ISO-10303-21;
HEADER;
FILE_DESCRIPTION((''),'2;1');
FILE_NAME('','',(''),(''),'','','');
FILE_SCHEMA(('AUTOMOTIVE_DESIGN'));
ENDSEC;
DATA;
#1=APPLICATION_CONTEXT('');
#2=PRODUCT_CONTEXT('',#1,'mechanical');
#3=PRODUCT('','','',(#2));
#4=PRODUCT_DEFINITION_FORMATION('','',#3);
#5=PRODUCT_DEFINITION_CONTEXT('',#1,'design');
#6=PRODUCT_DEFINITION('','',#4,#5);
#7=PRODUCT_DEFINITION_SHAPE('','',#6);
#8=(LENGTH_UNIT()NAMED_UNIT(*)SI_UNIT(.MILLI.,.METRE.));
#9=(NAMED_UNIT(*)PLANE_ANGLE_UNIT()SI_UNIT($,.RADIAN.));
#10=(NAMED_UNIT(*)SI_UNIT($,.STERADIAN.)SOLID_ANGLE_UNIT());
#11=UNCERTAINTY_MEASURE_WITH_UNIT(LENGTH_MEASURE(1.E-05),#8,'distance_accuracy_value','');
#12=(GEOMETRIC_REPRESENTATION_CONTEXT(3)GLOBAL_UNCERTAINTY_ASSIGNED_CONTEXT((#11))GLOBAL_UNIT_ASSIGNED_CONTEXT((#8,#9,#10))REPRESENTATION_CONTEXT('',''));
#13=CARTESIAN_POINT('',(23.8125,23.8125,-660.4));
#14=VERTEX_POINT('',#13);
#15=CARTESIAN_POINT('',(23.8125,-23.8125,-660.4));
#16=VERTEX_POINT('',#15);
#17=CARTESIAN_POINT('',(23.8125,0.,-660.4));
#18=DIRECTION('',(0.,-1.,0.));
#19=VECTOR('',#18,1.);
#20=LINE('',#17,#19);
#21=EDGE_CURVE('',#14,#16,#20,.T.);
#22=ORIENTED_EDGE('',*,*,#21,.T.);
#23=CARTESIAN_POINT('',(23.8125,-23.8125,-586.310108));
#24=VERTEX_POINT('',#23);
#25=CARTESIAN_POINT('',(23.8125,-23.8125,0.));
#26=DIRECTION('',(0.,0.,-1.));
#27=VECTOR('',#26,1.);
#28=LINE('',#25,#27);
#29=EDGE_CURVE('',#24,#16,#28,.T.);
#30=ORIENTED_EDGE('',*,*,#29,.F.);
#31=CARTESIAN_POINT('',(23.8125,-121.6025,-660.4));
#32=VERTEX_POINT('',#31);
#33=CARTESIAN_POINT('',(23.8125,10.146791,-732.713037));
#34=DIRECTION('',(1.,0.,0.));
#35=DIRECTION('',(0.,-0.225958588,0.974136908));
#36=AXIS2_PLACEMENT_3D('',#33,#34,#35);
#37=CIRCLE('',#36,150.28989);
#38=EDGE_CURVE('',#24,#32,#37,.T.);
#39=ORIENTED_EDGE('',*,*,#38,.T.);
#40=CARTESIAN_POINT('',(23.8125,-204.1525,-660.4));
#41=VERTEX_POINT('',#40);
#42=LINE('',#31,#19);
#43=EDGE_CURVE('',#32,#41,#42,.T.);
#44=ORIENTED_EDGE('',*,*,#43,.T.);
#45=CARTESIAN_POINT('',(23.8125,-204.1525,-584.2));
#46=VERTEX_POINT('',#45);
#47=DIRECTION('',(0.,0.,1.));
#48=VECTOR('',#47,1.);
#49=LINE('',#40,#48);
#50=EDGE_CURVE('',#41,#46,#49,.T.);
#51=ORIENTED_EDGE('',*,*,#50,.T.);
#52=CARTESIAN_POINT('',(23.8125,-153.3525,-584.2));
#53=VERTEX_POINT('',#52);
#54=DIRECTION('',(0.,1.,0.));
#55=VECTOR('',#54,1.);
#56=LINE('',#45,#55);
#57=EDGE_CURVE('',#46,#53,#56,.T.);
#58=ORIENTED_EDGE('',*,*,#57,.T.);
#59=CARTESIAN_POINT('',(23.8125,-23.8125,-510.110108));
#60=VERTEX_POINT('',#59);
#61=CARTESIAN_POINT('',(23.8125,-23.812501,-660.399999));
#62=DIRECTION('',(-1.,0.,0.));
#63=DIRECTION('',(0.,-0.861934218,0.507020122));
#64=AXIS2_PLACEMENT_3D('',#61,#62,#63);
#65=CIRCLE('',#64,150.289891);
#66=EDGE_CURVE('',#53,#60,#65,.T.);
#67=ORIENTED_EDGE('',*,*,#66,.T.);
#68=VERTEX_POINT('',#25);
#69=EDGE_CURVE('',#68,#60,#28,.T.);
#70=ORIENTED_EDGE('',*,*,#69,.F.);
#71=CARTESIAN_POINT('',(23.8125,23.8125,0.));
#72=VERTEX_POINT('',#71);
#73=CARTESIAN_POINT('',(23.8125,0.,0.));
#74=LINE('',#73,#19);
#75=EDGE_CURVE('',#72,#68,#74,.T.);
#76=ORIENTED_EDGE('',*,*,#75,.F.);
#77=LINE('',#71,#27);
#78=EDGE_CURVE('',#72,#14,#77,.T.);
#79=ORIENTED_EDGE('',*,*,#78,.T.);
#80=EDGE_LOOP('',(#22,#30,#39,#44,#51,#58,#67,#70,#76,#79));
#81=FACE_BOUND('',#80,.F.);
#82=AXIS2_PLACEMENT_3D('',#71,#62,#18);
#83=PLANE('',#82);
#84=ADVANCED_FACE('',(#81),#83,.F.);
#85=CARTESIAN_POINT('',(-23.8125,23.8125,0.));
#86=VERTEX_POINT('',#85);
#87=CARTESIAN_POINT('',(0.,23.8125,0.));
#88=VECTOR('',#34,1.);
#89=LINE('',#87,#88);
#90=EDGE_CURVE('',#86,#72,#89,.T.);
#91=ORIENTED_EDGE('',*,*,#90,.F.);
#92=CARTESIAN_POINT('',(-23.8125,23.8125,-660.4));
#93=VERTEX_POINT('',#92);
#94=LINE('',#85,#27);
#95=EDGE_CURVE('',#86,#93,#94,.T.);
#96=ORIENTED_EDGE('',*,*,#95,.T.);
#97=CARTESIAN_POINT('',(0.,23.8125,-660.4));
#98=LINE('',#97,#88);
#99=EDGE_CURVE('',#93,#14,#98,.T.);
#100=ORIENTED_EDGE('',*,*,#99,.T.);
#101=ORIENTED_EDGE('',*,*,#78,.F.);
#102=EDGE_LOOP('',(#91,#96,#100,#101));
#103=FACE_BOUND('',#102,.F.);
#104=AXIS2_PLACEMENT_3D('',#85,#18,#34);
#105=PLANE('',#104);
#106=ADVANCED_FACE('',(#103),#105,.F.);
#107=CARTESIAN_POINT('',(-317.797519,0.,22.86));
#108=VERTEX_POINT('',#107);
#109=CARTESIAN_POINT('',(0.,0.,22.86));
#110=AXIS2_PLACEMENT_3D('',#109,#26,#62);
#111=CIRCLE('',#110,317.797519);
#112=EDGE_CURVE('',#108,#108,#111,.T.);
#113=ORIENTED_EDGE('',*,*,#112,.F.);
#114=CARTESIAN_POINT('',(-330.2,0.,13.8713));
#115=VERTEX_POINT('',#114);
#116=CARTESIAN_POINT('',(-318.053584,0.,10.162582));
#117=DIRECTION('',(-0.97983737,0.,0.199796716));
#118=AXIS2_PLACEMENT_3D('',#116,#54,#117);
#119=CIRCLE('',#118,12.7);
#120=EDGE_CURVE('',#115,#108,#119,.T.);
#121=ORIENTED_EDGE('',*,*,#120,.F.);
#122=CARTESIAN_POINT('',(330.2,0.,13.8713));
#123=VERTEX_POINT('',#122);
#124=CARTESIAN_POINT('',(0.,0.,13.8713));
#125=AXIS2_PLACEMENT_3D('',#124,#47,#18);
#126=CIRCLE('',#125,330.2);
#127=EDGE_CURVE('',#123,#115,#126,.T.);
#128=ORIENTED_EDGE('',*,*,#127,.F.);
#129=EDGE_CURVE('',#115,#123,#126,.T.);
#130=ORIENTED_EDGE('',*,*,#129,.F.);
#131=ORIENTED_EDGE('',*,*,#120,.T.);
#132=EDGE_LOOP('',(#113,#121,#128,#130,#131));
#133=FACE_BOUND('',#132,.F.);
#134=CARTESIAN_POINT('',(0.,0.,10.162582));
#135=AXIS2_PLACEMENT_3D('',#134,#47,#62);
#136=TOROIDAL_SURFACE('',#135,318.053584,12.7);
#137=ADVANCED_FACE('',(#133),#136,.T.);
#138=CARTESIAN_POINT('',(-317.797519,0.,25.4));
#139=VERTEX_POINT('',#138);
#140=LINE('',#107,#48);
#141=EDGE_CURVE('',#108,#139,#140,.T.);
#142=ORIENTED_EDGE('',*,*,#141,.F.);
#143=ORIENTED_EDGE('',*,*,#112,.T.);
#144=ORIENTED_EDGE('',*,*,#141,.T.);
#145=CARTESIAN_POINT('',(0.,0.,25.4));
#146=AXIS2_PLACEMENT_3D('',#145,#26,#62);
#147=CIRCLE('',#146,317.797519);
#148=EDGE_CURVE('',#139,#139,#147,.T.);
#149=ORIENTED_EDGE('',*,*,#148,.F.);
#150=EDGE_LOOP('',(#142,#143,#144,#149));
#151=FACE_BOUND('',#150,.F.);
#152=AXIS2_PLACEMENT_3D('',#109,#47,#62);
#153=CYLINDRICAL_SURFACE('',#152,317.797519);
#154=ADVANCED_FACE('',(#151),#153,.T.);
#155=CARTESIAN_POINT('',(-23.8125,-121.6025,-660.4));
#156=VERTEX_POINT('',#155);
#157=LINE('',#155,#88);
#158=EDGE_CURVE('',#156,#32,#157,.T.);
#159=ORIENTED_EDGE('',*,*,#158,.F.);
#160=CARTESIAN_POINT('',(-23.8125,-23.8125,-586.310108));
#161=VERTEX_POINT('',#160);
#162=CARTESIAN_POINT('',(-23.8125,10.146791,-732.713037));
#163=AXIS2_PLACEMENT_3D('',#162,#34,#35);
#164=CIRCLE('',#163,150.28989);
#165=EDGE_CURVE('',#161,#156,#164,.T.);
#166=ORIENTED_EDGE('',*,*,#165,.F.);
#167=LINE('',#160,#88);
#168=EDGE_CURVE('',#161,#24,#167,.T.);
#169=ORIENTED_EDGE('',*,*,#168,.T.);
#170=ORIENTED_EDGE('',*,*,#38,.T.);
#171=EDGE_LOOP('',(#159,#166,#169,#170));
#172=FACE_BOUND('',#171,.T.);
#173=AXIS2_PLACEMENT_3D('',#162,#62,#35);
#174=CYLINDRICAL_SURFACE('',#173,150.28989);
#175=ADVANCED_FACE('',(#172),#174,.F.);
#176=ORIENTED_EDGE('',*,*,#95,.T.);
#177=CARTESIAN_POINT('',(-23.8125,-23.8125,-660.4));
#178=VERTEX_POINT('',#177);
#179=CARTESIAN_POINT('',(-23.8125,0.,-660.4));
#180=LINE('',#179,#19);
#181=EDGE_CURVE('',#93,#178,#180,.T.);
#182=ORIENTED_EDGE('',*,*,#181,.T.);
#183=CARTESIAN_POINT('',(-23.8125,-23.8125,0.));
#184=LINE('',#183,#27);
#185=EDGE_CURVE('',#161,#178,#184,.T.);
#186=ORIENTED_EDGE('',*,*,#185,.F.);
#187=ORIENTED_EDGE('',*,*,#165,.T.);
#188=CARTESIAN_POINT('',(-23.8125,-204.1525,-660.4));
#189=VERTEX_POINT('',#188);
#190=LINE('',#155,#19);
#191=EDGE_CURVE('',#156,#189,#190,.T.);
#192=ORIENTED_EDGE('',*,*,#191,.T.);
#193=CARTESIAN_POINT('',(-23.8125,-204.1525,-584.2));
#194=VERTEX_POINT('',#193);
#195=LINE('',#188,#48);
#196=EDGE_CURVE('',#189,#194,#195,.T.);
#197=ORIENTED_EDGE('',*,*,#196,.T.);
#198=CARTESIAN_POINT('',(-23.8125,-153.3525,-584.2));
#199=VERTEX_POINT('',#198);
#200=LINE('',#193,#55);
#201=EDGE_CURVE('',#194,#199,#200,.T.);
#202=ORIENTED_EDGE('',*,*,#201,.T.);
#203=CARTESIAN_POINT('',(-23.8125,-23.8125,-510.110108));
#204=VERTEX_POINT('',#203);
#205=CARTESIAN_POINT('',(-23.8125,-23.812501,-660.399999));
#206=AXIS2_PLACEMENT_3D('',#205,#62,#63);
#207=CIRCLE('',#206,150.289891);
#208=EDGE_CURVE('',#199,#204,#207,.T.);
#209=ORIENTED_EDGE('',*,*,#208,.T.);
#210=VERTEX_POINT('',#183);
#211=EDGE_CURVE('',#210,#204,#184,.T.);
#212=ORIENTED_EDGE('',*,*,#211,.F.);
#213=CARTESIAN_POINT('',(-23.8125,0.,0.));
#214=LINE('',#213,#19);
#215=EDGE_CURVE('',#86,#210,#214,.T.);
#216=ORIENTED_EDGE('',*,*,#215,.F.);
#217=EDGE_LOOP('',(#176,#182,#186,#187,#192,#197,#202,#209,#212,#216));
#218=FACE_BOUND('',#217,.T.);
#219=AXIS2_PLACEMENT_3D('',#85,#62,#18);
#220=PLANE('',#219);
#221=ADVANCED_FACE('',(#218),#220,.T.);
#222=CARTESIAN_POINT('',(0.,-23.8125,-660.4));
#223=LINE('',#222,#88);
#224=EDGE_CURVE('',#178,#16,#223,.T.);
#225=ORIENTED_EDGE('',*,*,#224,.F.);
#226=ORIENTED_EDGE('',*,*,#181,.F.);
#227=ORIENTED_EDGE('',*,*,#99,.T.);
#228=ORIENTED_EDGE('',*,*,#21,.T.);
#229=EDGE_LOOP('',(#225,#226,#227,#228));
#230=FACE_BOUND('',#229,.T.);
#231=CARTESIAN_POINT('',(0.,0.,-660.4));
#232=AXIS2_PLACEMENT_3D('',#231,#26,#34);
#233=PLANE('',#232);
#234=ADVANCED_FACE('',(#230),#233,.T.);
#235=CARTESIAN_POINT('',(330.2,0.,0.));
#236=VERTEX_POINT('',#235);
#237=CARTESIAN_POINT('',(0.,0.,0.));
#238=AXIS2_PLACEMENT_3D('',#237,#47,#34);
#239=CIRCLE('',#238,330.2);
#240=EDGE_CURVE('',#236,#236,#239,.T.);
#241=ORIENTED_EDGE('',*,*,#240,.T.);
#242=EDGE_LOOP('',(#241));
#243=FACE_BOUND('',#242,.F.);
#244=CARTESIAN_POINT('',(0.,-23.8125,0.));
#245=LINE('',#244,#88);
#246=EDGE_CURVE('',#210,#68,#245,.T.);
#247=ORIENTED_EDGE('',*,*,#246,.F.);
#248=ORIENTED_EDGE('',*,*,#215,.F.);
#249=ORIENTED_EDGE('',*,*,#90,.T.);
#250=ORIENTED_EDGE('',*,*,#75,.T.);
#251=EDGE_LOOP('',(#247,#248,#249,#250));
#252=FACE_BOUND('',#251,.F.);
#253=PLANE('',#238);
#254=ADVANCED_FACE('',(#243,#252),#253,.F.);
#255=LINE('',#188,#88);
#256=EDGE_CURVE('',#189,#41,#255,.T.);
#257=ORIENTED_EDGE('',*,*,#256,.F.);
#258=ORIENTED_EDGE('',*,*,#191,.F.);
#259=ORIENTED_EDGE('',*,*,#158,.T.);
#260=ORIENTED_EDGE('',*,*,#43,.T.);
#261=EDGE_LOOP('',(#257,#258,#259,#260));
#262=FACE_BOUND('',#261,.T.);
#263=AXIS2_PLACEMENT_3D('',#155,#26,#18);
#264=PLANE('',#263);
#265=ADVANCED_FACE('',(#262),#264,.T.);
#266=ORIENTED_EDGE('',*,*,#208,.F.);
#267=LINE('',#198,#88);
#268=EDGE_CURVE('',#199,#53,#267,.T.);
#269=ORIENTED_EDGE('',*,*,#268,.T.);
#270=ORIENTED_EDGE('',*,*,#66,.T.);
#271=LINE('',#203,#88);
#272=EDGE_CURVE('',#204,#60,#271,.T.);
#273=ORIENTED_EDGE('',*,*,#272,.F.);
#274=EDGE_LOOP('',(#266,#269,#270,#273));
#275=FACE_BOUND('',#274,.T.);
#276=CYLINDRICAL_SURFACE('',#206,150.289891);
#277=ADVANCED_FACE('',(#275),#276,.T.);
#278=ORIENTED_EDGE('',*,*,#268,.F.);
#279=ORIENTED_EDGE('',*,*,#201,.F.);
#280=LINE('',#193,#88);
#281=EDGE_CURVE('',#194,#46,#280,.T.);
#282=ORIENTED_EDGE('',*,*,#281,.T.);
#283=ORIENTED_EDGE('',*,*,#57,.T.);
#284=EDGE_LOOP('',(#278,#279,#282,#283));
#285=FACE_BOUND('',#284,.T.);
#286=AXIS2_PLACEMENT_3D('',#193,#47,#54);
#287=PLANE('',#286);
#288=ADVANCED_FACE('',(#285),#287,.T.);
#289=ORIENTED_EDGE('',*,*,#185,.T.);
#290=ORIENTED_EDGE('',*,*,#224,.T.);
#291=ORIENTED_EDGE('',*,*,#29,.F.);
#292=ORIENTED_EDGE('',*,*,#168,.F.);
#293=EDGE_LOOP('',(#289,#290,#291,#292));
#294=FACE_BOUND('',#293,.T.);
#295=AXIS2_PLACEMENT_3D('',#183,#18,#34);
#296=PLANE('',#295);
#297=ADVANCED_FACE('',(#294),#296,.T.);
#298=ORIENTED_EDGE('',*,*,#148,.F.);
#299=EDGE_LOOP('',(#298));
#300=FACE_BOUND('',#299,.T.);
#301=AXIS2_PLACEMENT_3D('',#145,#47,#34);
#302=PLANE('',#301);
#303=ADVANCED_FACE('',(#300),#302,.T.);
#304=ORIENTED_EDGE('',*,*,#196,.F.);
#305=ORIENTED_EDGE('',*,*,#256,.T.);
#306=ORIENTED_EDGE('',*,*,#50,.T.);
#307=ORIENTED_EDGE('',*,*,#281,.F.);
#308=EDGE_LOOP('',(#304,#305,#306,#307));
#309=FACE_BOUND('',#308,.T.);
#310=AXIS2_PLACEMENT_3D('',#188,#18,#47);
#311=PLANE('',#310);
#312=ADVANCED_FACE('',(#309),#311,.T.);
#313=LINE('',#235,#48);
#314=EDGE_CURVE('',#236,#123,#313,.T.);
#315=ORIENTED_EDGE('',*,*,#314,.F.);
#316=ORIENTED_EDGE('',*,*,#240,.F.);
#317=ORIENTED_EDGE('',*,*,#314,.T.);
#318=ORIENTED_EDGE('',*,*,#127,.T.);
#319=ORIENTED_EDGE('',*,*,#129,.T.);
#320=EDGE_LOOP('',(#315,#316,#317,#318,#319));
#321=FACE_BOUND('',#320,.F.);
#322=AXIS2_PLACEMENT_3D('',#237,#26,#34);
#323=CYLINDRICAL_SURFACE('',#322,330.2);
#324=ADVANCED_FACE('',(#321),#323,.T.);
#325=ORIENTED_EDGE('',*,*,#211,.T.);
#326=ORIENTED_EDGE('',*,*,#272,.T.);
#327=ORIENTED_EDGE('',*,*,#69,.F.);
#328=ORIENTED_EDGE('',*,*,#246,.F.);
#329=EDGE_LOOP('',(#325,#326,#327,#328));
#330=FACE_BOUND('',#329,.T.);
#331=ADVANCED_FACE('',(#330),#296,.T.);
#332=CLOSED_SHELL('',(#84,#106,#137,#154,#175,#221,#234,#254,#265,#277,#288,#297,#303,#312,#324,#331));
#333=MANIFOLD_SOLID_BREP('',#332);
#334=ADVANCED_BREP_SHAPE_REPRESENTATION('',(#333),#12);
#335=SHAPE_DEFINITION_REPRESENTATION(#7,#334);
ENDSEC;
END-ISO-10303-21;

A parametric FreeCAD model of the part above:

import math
import FreeCAD as App
import Part
import Sketcher

V = App.Vector
Q = App.Units.Quantity


def add_polygon(sketch, points):
    """Adds a closed chain of lines whose ends are joined by coincident constraints."""
    first, n = sketch.GeometryCount, len(points)
    for a, b in zip(points, points[1:] + points[:1]):
        sketch.addGeometry(Part.LineSegment(App.Vector(*a, 0), App.Vector(*b, 0)), False)
    for i in range(n):
        sketch.addConstraint(Sketcher.Constraint("Coincident", first + i, 2, first + (i + 1) % n, 1))

doc = App.newDocument("Part")
body = doc.addObject("PartDesign::Body", "Body")

# Sketch on XY plane
sketch1 = doc.addObject("Sketcher::SketchObject", "Sketch")
body.addObject(sketch1)
sketch1.AttachmentSupport = (doc.XY_Plane, [""])
sketch1.MapMode = "FlatFace"
sketch1.addGeometry(Part.Circle(V(0, 0, 0), V(0, 0, 1), 330), False)
sketch1.addConstraint(Sketcher.Constraint("Coincident", 0, 3, -1, 1))
sketch1.addConstraint(Sketcher.Constraint("Diameter", 0, Q("26 in")))
pad1 = doc.addObject("PartDesign::Pad", "Pad")
body.addObject(pad1)
pad1.Profile = sketch1
pad1.Length = Q("1 in")

# Sketch on XZ plane
sketch2 = doc.addObject("Sketcher::SketchObject", "Sketch001")
body.addObject(sketch2)
sketch2.AttachmentSupport = (doc.XZ_Plane, [""])
sketch2.MapMode = "FlatFace"
sketch2.addGeometry(Part.LineSegment(V(-317.8, 22.9, 0), V(-317.8, 25.4, 0)), False)
sketch2.addGeometry(Part.LineSegment(V(-317.8, 25.4, 0), V(-330.5, 25.4, 0)), False)
sketch2.addGeometry(Part.LineSegment(V(-330.5, 25.4, 0), V(-330.5, 12.7, 0)), False)
sketch2.addGeometry(Part.ArcOfCircle(Part.Circle(V(-318.1, 10.2, 0), V(0, 0, 1), 12.7), math.radians(89), math.radians(168)), False)
sketch2.addConstraint(Sketcher.Constraint("Coincident", 0, 2, 1, 1))
sketch2.addConstraint(Sketcher.Constraint("Coincident", 1, 2, 2, 1))
sketch2.addConstraint(Sketcher.Constraint("Coincident", 2, 2, 3, 2))
sketch2.addConstraint(Sketcher.Constraint("Coincident", 3, 1, 0, 1))
sketch2.addConstraint(Sketcher.Constraint("Vertical", 0))
sketch2.addConstraint(Sketcher.Constraint("Horizontal", 1))
sketch2.addConstraint(Sketcher.Constraint("Vertical", 2))
sketch2.addConstraint(Sketcher.Constraint("Equal", 1, 2))
sketch2.addConstraint(Sketcher.Constraint("Radius", 3, Q("0.5 in")))
sketch2.addConstraint(Sketcher.Constraint("DistanceX", 1, 2, 1, 1, Q("0.5 in")))
sketch2.addConstraint(Sketcher.Constraint("DistanceY", 0, 1, 0, 2, Q("0.1 in")))
sketch2.addConstraint(Sketcher.Constraint("DistanceY", -1, 1, 0, 2, Q("1 in")))
sketch2.addConstraint(Sketcher.Constraint("DistanceX", 0, 2, -1, 1, Q("317.797519 mm")))
groove = doc.addObject("PartDesign::Groove", "Groove")
body.addObject(groove)
groove.Profile = sketch2
groove.ReferenceAxis = (sketch2, ["V_Axis"])
groove.Angle = 360

# Sketch on XY plane
sketch3 = doc.addObject("Sketcher::SketchObject", "Sketch002")
body.addObject(sketch3)
sketch3.AttachmentSupport = (doc.XY_Plane, [""])
sketch3.MapMode = "FlatFace"
add_polygon(sketch3, [(-24, -24), (-24, 24), (24, 24), (24, -24)])  # lines 0-3
sketch3.addConstraint(Sketcher.Constraint("Vertical", 0))
sketch3.addConstraint(Sketcher.Constraint("Horizontal", 1))
sketch3.addConstraint(Sketcher.Constraint("Vertical", 2))
sketch3.addConstraint(Sketcher.Constraint("Horizontal", 3))
sketch3.addConstraint(Sketcher.Constraint("Symmetric", 0, 2, 2, 2, -1, 1))
sketch3.addConstraint(Sketcher.Constraint("Equal", 3, 0))
sketch3.addConstraint(Sketcher.Constraint("DistanceX", 1, 1, 1, 2, Q("1.875 in")))
pad2 = doc.addObject("PartDesign::Pad", "Pad001")
body.addObject(pad2)
pad2.Profile = sketch3
pad2.Length = Q("26 in")
pad2.Reversed = True

# Sketch on YZ plane
sketch4 = doc.addObject("Sketcher::SketchObject", "Sketch003")
body.addObject(sketch4)
sketch4.AttachmentSupport = (doc.YZ_Plane, [""])
sketch4.MapMode = "FlatFace"
sketch4.AttachmentOffset = App.Placement(V(0, 0, -0.9375 * 25.4), App.Rotation())
sketch4.addGeometry(Part.LineSegment(V(-204, -584, 0), V(-153, -584, 0)), False)
sketch4.addGeometry(Part.ArcOfCircle(Part.Circle(V(-24, -660, 0), V(0, 0, 1), 150), math.radians(90), math.radians(150)), False)
sketch4.addGeometry(Part.LineSegment(V(-24, -510, 0), V(-24, -586, 0)), False)
sketch4.addGeometry(Part.ArcOfCircle(Part.Circle(V(10, -733, 0), V(0, 0, 1), 150), math.radians(103), math.radians(151)), False)
sketch4.addGeometry(Part.LineSegment(V(-122, -660, 0), V(-204, -660, 0)), False)
sketch4.addGeometry(Part.LineSegment(V(-204, -660, 0), V(-204, -584, 0)), False)
sketch4.addConstraint(Sketcher.Constraint("Coincident", 0, 2, 1, 2))
sketch4.addConstraint(Sketcher.Constraint("Coincident", 1, 1, 2, 1))
sketch4.addConstraint(Sketcher.Constraint("Coincident", 2, 2, 3, 1))
sketch4.addConstraint(Sketcher.Constraint("Coincident", 3, 2, 4, 1))
sketch4.addConstraint(Sketcher.Constraint("Coincident", 4, 2, 5, 1))
sketch4.addConstraint(Sketcher.Constraint("Coincident", 5, 2, 0, 1))
sketch4.addConstraint(Sketcher.Constraint("Horizontal", 0))
sketch4.addConstraint(Sketcher.Constraint("Vertical", 2))
sketch4.addConstraint(Sketcher.Constraint("Horizontal", 4))
sketch4.addConstraint(Sketcher.Constraint("Vertical", 5))
sketch4.addConstraint(Sketcher.Constraint("Equal", 1, 3))
sketch4.addConstraint(Sketcher.Constraint("Horizontal", 1, 3, 3, 2))
sketch4.addConstraint(Sketcher.Constraint("Equal", 2, 5))
sketch4.addConstraint(Sketcher.Constraint("DistanceX", 0, 1, 0, 2, Q("2 in")))
sketch4.addConstraint(Sketcher.Constraint("DistanceY", 2, 2, 2, 1, Q("3 in")))
sketch4.addConstraint(Sketcher.Constraint("DistanceY", 1, 3, -1, 1, Q("26 in")))
sketch4.addConstraint(Sketcher.Constraint("DistanceX", 4, 2, 4, 1, Q("3.25 in")))
sketch4.addConstraint(Sketcher.Constraint("DistanceX", 0, 2, 1, 3, Q("5.1 in")))
sketch4.addConstraint(Sketcher.Constraint("DistanceX", 0, 2, 1, 1, Q("5.1 in")))
sketch4.addConstraint(Sketcher.Constraint("DistanceX", 1, 3, -1, 1, Q("0.9375 in")))
pad3 = doc.addObject("PartDesign::Pad", "Pad002")
body.addObject(pad3)
pad3.Profile = sketch4
pad3.Length = Q("1.875 in")

doc.recompute()
